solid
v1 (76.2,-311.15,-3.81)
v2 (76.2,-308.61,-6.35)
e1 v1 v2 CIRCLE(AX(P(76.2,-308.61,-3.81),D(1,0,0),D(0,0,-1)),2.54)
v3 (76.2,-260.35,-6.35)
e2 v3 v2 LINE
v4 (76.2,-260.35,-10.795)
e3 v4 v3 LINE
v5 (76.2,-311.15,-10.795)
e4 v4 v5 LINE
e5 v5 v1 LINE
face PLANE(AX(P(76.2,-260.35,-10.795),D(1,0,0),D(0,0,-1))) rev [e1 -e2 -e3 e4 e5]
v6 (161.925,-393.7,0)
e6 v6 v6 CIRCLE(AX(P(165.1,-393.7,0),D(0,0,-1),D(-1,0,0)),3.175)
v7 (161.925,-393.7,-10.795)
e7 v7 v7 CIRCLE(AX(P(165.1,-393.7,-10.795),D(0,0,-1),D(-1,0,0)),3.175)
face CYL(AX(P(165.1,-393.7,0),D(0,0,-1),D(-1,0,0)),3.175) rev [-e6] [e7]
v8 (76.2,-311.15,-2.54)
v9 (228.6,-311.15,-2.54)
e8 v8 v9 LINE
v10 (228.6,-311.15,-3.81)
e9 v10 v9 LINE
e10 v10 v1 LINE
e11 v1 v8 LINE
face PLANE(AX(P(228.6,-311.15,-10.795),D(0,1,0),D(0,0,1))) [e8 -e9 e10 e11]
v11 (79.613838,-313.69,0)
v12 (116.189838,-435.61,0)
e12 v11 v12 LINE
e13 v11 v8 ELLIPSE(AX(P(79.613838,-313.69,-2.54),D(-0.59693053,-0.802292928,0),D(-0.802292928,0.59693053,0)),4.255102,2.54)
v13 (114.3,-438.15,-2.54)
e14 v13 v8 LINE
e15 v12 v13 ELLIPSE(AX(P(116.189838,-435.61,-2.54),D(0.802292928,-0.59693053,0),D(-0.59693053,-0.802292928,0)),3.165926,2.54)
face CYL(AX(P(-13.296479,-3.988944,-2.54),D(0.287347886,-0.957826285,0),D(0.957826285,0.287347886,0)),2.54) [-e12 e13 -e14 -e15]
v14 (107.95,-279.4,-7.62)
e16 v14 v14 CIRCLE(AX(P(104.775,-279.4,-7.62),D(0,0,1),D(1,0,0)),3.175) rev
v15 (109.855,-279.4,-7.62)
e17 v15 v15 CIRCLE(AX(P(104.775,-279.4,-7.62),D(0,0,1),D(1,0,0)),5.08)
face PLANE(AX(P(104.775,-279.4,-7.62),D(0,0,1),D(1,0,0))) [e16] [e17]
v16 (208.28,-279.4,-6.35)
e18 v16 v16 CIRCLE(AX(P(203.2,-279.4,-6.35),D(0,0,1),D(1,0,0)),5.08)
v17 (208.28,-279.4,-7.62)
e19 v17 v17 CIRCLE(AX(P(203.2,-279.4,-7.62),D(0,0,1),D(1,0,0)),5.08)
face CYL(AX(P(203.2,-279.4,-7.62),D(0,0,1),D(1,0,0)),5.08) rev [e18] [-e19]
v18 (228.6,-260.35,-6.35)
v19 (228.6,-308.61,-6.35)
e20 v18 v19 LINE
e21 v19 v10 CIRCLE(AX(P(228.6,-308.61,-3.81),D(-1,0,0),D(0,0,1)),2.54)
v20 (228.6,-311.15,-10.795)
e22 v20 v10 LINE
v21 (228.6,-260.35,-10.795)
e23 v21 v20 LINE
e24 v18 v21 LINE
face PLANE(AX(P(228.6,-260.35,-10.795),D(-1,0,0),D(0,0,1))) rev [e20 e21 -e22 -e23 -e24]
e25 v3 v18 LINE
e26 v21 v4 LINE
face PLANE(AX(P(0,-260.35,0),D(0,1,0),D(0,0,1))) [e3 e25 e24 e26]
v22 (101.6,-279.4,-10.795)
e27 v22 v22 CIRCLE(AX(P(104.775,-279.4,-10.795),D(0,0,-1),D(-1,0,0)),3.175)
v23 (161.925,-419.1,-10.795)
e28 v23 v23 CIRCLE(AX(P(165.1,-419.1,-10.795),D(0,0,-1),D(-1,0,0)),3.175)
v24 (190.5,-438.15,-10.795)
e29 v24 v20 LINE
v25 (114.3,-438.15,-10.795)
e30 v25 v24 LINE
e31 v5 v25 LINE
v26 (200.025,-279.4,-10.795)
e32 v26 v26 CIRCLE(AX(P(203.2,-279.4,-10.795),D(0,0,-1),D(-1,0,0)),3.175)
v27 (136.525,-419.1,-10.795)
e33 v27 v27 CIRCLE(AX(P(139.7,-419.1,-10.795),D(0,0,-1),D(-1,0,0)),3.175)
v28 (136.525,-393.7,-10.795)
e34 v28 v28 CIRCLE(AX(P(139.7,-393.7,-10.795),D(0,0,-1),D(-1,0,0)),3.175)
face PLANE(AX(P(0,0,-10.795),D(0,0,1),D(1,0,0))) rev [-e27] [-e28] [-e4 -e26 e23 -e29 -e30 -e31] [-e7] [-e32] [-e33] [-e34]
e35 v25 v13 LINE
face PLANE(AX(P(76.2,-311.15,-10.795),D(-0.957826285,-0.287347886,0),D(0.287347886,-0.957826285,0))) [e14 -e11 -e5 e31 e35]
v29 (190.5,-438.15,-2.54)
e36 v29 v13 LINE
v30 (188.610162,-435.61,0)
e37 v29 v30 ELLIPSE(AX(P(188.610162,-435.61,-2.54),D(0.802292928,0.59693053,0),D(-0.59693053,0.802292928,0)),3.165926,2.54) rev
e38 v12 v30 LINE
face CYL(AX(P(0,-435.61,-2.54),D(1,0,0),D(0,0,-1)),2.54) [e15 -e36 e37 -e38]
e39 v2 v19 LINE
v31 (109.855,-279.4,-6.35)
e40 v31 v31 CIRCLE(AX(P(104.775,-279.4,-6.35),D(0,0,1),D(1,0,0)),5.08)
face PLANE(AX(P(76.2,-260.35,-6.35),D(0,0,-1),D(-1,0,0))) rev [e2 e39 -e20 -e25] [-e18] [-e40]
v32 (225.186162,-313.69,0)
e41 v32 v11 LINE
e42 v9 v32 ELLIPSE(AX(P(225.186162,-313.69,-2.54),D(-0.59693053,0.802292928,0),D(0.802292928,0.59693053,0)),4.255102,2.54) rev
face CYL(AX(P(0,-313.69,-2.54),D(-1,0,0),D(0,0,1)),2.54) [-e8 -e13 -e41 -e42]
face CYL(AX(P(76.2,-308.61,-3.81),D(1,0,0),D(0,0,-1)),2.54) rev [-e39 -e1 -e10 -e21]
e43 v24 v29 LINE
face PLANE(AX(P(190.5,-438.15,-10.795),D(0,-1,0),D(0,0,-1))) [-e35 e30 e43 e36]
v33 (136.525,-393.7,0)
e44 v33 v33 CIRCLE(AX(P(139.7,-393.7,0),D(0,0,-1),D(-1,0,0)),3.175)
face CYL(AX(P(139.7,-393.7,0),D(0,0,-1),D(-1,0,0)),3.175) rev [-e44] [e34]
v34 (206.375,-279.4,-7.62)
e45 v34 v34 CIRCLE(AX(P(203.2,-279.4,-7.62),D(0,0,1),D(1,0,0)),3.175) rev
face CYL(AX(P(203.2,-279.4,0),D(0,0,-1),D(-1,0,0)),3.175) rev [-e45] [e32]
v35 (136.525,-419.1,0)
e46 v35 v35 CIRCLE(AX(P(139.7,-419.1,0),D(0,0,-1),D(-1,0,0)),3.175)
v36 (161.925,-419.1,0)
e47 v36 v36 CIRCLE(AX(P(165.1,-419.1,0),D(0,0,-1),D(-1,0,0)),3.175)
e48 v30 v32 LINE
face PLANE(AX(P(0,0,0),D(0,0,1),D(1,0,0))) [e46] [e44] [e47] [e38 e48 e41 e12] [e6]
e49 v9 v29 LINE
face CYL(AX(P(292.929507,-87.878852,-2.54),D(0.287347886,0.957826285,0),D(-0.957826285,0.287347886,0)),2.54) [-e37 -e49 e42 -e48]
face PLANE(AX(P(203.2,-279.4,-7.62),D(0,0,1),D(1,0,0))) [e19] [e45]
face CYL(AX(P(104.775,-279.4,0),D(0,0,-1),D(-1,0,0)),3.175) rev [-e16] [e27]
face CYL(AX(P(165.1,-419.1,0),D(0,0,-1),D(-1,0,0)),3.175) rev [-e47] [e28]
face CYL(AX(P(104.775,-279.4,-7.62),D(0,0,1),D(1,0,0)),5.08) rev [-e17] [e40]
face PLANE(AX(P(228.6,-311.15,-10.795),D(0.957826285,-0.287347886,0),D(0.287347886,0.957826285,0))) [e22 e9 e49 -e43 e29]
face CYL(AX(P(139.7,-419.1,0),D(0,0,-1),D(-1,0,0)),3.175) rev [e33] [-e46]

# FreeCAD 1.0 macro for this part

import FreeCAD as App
import Part
import Sketcher

V = App.Vector
Q = App.Units.Quantity


def edges_at(feature, points):
    """Names of the edges that pass closest to the given points."""
    edges = feature.Shape.Edges
    near = lambda p: min(range(len(edges)), key=lambda i: edges[i].distToShape(Part.Vertex(*p))[0])
    return sorted({f"Edge{near(p) + 1}" for p in points})

doc = App.newDocument("Part")
params = doc.addObject("Spreadsheet::Sheet", "Params")
for row, (alias, value) in enumerate([
    ("sketch1_width", "6 in"),
    ("sketch1_width2", "3 in"),
    ("pad1_length", "0.425 in"),
    ("sketch2_width", "6 in"),
    ("sketch2_height", "0.175 in"),
    ("pad2_length", "2 in"),
    ("sketch3_diameter", "0.25 in"),
    ("fillet_radius", "0.1 in"),
    ("fillet2_radius", "0.1 in"),
    ("sketch4_diameter", "0.4 in"),
    ("pocket2_length", "0.05 in"),
], start=1):
    params.set(f"A{row}", alias)
    params.set(f"B{row}", "=" + value)
    params.setAlias(f"B{row}", alias)

body = doc.addObject("PartDesign::Body", "Body")

# Sketch on XY plane
sketch1 = doc.addObject("Sketcher::SketchObject", "Sketch")
body.addObject(sketch1)
sketch1.AttachmentSupport = (doc.XY_Plane, [""])
sketch1.MapMode = "FlatFace"
sketch1.addGeometry(Part.LineSegment(V(190, -438, 0), V(229, -311, 0)), False)
sketch1.addGeometry(Part.LineSegment(V(229, -311, 0), V(76, -311, 0)), False)
sketch1.addGeometry(Part.LineSegment(V(76, -311, 0), V(114, -438, 0)), False)
sketch1.addGeometry(Part.LineSegment(V(114, -438, 0), V(190, -438, 0)), False)
sketch1.addConstraint(Sketcher.Constraint("Coincident", 0, 2, 1, 1))
sketch1.addConstraint(Sketcher.Constraint("Coincident", 1, 2, 2, 1))
sketch1.addConstraint(Sketcher.Constraint("Coincident", 2, 2, 3, 1))
sketch1.addConstraint(Sketcher.Constraint("Coincident", 3, 2, 0, 1))
sketch1.addConstraint(Sketcher.Constraint("Horizontal", 1))
sketch1.addConstraint(Sketcher.Constraint("Horizontal", 3))
sketch1.addConstraint(Sketcher.Constraint("Equal", 0, 2))
sketch1.addConstraint(Sketcher.Constraint("DistanceX", 1, 2, 1, 1, Q("6 in")))
sketch1.addConstraint(Sketcher.Constraint("DistanceX", 3, 1, 3, 2, Q("3 in")))
sketch1.addConstraint(Sketcher.Constraint("DistanceX", -1, 1, 0, 2, Q("9 in")))
sketch1.addConstraint(Sketcher.Constraint("DistanceY", 2, 2, 1, 2, Q("5 in")))
sketch1.addConstraint(Sketcher.Constraint("DistanceY", 0, 2, -1, 1, Q("12.25 in")))
sketch1.setExpression("Constraints[7]", "Params.sketch1_width")
sketch1.setExpression("Constraints[8]", "Params.sketch1_width2")
pad1 = doc.addObject("PartDesign::Pad", "Pad")
body.addObject(pad1)
pad1.Profile = sketch1
pad1.setExpression("Length", "Params.pad1_length")
pad1.Reversed = True

# Sketch on XZ plane
sketch2 = doc.addObject("Sketcher::SketchObject", "Sketch001")
body.addObject(sketch2)
sketch2.AttachmentSupport = (doc.XZ_Plane, [""])
sketch2.MapMode = "FlatFace"
sketch2.AttachmentOffset = App.Placement(V(0, 0, 12.25 * 25.4), App.Rotation())
sketch2.addGeometry(Part.LineSegment(V(76.2, -10.8, 0), V(76.2, -6.3, 0)), False)
sketch2.addGeometry(Part.LineSegment(V(76.2, -6.3, 0), V(228.6, -6.3, 0)), False)
sketch2.addGeometry(Part.LineSegment(V(228.6, -6.3, 0), V(228.6, -10.8, 0)), False)
sketch2.addGeometry(Part.LineSegment(V(228.6, -10.8, 0), V(76.2, -10.8, 0)), False)
sketch2.addConstraint(Sketcher.Constraint("Coincident", 0, 2, 1, 1))
sketch2.addConstraint(Sketcher.Constraint("Coincident", 1, 2, 2, 1))
sketch2.addConstraint(Sketcher.Constraint("Coincident", 2, 2, 3, 1))
sketch2.addConstraint(Sketcher.Constraint("Coincident", 3, 2, 0, 1))
sketch2.addConstraint(Sketcher.Constraint("Vertical", 0))
sketch2.addConstraint(Sketcher.Constraint("Horizontal", 1))
sketch2.addConstraint(Sketcher.Constraint("Vertical", 2))
sketch2.addConstraint(Sketcher.Constraint("Horizontal", 3))
sketch2.addConstraint(Sketcher.Constraint("DistanceX", 1, 1, 1, 2, Q("6 in")))
sketch2.addConstraint(Sketcher.Constraint("DistanceX", -1, 1, 0, 2, Q("3 in")))
sketch2.addConstraint(Sketcher.Constraint("DistanceY", 0, 1, 0, 2, Q("0.175 in")))
sketch2.addConstraint(Sketcher.Constraint("DistanceY", 0, 2, -1, 1, Q("0.25 in")))
sketch2.setExpression("Constraints[8]", "Params.sketch2_width")
sketch2.setExpression("Constraints[10]", "Params.sketch2_height")
pad2 = doc.addObject("PartDesign::Pad", "Pad001")
body.addObject(pad2)
pad2.Profile = sketch2
pad2.setExpression("Length", "Params.pad2_length")
pad2.Reversed = True

# Sketch on XY plane
sketch3 = doc.addObject("Sketcher::SketchObject", "Sketch002")
body.addObject(sketch3)
sketch3.AttachmentSupport = (doc.XY_Plane, [""])
sketch3.MapMode = "FlatFace"
sketch3.AttachmentOffset = App.Placement(V(0, 0, -0.425 * 25.4), App.Rotation())
sketch3.addGeometry(Part.Circle(V(104.8, -279.4, 0), V(0, 0, 1), 3.2), False)
sketch3.addGeometry(Part.Circle(V(203.2, -279.4, 0), V(0, 0, 1), 3.2), False)
sketch3.addGeometry(Part.Circle(V(139.7, -393.7, 0), V(0, 0, 1), 3.2), False)
sketch3.addGeometry(Part.Circle(V(165.1, -393.7, 0), V(0, 0, 1), 3.2), False)
sketch3.addGeometry(Part.Circle(V(139.7, -419.1, 0), V(0, 0, 1), 3.2), False)
sketch3.addGeometry(Part.Circle(V(165.1, -419.1, 0), V(0, 0, 1), 3.2), False)
sketch3.addConstraint(Sketcher.Constraint("Equal", 0, 1))
sketch3.addConstraint(Sketcher.Constraint("Equal", 1, 2))
sketch3.addConstraint(Sketcher.Constraint("Equal", 2, 3))
sketch3.addConstraint(Sketcher.Constraint("Equal", 3, 4))
sketch3.addConstraint(Sketcher.Constraint("Equal", 4, 5))
sketch3.addConstraint(Sketcher.Constraint("Horizontal", 0, 3, 1, 3))
sketch3.addConstraint(Sketcher.Constraint("Horizontal", 2, 3, 3, 3))
sketch3.addConstraint(Sketcher.Constraint("Horizontal", 4, 3, 5, 3))
sketch3.addConstraint(Sketcher.Constraint("Vertical", 2, 3, 4, 3))
sketch3.addConstraint(Sketcher.Constraint("Vertical", 3, 3, 5, 3))
sketch3.addConstraint(Sketcher.Constraint("Diameter", 0, Q("0.25 in")))
sketch3.addConstraint(Sketcher.Constraint("DistanceY", 0, 3, -1, 1, Q("11 in")))
sketch3.addConstraint(Sketcher.Constraint("DistanceX", -1, 1, 1, 3, Q("8 in")))
sketch3.addConstraint(Sketcher.Constraint("DistanceX", 2, 3, 3, 3, Q("1 in")))
sketch3.addConstraint(Sketcher.Constraint("DistanceY", 4, 3, 2, 3, Q("1 in")))
sketch3.addConstraint(Sketcher.Constraint("DistanceX", -1, 1, 2, 3, Q("5.5 in")))
sketch3.addConstraint(Sketcher.Constraint("DistanceY", 2, 3, -1, 1, Q("15.5 in")))
sketch3.addConstraint(Sketcher.Constraint("DistanceX", -1, 1, 0, 3, Q("4.125 in")))
sketch3.setExpression("Constraints[10]", "Params.sketch3_diameter")
pocket1 = doc.addObject("PartDesign::Pocket", "Pocket")
body.addObject(pocket1)
pocket1.Profile = sketch3
pocket1.Type = "ThroughAll"
pocket1.Reversed = True
doc.recompute()

fillet = doc.addObject("PartDesign::Fillet", "Fillet")
body.addObject(fillet)
fillet.Base = (pocket1, edges_at(pocket1, [(152.4, -311.15, -6.35)]))
fillet.setExpression("Radius", "Params.fillet_radius")
doc.recompute()

fillet2 = doc.addObject("PartDesign::Fillet", "Fillet001")
body.addObject(fillet2)
fillet2.Base = (fillet, edges_at(fillet, [
    (209.55, -374.65, 0),
    (152.4, -438.15, 0),
    (95.25, -374.65, 0),
    (152.4, -311.15, 0),
]))
fillet2.setExpression("Radius", "Params.fillet2_radius")

# Sketch on XY plane
sketch4 = doc.addObject("Sketcher::SketchObject", "Sketch003")
body.addObject(sketch4)
sketch4.AttachmentSupport = (doc.XY_Plane, [""])
sketch4.MapMode = "FlatFace"
sketch4.AttachmentOffset = App.Placement(V(0, 0, -0.25 * 25.4), App.Rotation())
sketch4.addGeometry(Part.Circle(V(105, -279, 0), V(0, 0, 1), 5), False)
sketch4.addGeometry(Part.Circle(V(203, -279, 0), V(0, 0, 1), 5), False)
sketch4.addConstraint(Sketcher.Constraint("Equal", 0, 1))
sketch4.addConstraint(Sketcher.Constraint("Horizontal", 0, 3, 1, 3))
sketch4.addConstraint(Sketcher.Constraint("Diameter", 0, Q("0.4 in")))
sketch4.addConstraint(Sketcher.Constraint("DistanceY", 0, 3, -1, 1, Q("11 in")))
sketch4.addConstraint(Sketcher.Constraint("DistanceX", -1, 1, 1, 3, Q("8 in")))
sketch4.addConstraint(Sketcher.Constraint("DistanceX", -1, 1, 0, 3, Q("4.125 in")))
sketch4.setExpression("Constraints[2]", "Params.sketch4_diameter")
pocket2 = doc.addObject("PartDesign::Pocket", "Pocket001")
body.addObject(pocket2)
pocket2.Profile = sketch4
pocket2.setExpression("Length", "Params.pocket2_length")

doc.recompute()
